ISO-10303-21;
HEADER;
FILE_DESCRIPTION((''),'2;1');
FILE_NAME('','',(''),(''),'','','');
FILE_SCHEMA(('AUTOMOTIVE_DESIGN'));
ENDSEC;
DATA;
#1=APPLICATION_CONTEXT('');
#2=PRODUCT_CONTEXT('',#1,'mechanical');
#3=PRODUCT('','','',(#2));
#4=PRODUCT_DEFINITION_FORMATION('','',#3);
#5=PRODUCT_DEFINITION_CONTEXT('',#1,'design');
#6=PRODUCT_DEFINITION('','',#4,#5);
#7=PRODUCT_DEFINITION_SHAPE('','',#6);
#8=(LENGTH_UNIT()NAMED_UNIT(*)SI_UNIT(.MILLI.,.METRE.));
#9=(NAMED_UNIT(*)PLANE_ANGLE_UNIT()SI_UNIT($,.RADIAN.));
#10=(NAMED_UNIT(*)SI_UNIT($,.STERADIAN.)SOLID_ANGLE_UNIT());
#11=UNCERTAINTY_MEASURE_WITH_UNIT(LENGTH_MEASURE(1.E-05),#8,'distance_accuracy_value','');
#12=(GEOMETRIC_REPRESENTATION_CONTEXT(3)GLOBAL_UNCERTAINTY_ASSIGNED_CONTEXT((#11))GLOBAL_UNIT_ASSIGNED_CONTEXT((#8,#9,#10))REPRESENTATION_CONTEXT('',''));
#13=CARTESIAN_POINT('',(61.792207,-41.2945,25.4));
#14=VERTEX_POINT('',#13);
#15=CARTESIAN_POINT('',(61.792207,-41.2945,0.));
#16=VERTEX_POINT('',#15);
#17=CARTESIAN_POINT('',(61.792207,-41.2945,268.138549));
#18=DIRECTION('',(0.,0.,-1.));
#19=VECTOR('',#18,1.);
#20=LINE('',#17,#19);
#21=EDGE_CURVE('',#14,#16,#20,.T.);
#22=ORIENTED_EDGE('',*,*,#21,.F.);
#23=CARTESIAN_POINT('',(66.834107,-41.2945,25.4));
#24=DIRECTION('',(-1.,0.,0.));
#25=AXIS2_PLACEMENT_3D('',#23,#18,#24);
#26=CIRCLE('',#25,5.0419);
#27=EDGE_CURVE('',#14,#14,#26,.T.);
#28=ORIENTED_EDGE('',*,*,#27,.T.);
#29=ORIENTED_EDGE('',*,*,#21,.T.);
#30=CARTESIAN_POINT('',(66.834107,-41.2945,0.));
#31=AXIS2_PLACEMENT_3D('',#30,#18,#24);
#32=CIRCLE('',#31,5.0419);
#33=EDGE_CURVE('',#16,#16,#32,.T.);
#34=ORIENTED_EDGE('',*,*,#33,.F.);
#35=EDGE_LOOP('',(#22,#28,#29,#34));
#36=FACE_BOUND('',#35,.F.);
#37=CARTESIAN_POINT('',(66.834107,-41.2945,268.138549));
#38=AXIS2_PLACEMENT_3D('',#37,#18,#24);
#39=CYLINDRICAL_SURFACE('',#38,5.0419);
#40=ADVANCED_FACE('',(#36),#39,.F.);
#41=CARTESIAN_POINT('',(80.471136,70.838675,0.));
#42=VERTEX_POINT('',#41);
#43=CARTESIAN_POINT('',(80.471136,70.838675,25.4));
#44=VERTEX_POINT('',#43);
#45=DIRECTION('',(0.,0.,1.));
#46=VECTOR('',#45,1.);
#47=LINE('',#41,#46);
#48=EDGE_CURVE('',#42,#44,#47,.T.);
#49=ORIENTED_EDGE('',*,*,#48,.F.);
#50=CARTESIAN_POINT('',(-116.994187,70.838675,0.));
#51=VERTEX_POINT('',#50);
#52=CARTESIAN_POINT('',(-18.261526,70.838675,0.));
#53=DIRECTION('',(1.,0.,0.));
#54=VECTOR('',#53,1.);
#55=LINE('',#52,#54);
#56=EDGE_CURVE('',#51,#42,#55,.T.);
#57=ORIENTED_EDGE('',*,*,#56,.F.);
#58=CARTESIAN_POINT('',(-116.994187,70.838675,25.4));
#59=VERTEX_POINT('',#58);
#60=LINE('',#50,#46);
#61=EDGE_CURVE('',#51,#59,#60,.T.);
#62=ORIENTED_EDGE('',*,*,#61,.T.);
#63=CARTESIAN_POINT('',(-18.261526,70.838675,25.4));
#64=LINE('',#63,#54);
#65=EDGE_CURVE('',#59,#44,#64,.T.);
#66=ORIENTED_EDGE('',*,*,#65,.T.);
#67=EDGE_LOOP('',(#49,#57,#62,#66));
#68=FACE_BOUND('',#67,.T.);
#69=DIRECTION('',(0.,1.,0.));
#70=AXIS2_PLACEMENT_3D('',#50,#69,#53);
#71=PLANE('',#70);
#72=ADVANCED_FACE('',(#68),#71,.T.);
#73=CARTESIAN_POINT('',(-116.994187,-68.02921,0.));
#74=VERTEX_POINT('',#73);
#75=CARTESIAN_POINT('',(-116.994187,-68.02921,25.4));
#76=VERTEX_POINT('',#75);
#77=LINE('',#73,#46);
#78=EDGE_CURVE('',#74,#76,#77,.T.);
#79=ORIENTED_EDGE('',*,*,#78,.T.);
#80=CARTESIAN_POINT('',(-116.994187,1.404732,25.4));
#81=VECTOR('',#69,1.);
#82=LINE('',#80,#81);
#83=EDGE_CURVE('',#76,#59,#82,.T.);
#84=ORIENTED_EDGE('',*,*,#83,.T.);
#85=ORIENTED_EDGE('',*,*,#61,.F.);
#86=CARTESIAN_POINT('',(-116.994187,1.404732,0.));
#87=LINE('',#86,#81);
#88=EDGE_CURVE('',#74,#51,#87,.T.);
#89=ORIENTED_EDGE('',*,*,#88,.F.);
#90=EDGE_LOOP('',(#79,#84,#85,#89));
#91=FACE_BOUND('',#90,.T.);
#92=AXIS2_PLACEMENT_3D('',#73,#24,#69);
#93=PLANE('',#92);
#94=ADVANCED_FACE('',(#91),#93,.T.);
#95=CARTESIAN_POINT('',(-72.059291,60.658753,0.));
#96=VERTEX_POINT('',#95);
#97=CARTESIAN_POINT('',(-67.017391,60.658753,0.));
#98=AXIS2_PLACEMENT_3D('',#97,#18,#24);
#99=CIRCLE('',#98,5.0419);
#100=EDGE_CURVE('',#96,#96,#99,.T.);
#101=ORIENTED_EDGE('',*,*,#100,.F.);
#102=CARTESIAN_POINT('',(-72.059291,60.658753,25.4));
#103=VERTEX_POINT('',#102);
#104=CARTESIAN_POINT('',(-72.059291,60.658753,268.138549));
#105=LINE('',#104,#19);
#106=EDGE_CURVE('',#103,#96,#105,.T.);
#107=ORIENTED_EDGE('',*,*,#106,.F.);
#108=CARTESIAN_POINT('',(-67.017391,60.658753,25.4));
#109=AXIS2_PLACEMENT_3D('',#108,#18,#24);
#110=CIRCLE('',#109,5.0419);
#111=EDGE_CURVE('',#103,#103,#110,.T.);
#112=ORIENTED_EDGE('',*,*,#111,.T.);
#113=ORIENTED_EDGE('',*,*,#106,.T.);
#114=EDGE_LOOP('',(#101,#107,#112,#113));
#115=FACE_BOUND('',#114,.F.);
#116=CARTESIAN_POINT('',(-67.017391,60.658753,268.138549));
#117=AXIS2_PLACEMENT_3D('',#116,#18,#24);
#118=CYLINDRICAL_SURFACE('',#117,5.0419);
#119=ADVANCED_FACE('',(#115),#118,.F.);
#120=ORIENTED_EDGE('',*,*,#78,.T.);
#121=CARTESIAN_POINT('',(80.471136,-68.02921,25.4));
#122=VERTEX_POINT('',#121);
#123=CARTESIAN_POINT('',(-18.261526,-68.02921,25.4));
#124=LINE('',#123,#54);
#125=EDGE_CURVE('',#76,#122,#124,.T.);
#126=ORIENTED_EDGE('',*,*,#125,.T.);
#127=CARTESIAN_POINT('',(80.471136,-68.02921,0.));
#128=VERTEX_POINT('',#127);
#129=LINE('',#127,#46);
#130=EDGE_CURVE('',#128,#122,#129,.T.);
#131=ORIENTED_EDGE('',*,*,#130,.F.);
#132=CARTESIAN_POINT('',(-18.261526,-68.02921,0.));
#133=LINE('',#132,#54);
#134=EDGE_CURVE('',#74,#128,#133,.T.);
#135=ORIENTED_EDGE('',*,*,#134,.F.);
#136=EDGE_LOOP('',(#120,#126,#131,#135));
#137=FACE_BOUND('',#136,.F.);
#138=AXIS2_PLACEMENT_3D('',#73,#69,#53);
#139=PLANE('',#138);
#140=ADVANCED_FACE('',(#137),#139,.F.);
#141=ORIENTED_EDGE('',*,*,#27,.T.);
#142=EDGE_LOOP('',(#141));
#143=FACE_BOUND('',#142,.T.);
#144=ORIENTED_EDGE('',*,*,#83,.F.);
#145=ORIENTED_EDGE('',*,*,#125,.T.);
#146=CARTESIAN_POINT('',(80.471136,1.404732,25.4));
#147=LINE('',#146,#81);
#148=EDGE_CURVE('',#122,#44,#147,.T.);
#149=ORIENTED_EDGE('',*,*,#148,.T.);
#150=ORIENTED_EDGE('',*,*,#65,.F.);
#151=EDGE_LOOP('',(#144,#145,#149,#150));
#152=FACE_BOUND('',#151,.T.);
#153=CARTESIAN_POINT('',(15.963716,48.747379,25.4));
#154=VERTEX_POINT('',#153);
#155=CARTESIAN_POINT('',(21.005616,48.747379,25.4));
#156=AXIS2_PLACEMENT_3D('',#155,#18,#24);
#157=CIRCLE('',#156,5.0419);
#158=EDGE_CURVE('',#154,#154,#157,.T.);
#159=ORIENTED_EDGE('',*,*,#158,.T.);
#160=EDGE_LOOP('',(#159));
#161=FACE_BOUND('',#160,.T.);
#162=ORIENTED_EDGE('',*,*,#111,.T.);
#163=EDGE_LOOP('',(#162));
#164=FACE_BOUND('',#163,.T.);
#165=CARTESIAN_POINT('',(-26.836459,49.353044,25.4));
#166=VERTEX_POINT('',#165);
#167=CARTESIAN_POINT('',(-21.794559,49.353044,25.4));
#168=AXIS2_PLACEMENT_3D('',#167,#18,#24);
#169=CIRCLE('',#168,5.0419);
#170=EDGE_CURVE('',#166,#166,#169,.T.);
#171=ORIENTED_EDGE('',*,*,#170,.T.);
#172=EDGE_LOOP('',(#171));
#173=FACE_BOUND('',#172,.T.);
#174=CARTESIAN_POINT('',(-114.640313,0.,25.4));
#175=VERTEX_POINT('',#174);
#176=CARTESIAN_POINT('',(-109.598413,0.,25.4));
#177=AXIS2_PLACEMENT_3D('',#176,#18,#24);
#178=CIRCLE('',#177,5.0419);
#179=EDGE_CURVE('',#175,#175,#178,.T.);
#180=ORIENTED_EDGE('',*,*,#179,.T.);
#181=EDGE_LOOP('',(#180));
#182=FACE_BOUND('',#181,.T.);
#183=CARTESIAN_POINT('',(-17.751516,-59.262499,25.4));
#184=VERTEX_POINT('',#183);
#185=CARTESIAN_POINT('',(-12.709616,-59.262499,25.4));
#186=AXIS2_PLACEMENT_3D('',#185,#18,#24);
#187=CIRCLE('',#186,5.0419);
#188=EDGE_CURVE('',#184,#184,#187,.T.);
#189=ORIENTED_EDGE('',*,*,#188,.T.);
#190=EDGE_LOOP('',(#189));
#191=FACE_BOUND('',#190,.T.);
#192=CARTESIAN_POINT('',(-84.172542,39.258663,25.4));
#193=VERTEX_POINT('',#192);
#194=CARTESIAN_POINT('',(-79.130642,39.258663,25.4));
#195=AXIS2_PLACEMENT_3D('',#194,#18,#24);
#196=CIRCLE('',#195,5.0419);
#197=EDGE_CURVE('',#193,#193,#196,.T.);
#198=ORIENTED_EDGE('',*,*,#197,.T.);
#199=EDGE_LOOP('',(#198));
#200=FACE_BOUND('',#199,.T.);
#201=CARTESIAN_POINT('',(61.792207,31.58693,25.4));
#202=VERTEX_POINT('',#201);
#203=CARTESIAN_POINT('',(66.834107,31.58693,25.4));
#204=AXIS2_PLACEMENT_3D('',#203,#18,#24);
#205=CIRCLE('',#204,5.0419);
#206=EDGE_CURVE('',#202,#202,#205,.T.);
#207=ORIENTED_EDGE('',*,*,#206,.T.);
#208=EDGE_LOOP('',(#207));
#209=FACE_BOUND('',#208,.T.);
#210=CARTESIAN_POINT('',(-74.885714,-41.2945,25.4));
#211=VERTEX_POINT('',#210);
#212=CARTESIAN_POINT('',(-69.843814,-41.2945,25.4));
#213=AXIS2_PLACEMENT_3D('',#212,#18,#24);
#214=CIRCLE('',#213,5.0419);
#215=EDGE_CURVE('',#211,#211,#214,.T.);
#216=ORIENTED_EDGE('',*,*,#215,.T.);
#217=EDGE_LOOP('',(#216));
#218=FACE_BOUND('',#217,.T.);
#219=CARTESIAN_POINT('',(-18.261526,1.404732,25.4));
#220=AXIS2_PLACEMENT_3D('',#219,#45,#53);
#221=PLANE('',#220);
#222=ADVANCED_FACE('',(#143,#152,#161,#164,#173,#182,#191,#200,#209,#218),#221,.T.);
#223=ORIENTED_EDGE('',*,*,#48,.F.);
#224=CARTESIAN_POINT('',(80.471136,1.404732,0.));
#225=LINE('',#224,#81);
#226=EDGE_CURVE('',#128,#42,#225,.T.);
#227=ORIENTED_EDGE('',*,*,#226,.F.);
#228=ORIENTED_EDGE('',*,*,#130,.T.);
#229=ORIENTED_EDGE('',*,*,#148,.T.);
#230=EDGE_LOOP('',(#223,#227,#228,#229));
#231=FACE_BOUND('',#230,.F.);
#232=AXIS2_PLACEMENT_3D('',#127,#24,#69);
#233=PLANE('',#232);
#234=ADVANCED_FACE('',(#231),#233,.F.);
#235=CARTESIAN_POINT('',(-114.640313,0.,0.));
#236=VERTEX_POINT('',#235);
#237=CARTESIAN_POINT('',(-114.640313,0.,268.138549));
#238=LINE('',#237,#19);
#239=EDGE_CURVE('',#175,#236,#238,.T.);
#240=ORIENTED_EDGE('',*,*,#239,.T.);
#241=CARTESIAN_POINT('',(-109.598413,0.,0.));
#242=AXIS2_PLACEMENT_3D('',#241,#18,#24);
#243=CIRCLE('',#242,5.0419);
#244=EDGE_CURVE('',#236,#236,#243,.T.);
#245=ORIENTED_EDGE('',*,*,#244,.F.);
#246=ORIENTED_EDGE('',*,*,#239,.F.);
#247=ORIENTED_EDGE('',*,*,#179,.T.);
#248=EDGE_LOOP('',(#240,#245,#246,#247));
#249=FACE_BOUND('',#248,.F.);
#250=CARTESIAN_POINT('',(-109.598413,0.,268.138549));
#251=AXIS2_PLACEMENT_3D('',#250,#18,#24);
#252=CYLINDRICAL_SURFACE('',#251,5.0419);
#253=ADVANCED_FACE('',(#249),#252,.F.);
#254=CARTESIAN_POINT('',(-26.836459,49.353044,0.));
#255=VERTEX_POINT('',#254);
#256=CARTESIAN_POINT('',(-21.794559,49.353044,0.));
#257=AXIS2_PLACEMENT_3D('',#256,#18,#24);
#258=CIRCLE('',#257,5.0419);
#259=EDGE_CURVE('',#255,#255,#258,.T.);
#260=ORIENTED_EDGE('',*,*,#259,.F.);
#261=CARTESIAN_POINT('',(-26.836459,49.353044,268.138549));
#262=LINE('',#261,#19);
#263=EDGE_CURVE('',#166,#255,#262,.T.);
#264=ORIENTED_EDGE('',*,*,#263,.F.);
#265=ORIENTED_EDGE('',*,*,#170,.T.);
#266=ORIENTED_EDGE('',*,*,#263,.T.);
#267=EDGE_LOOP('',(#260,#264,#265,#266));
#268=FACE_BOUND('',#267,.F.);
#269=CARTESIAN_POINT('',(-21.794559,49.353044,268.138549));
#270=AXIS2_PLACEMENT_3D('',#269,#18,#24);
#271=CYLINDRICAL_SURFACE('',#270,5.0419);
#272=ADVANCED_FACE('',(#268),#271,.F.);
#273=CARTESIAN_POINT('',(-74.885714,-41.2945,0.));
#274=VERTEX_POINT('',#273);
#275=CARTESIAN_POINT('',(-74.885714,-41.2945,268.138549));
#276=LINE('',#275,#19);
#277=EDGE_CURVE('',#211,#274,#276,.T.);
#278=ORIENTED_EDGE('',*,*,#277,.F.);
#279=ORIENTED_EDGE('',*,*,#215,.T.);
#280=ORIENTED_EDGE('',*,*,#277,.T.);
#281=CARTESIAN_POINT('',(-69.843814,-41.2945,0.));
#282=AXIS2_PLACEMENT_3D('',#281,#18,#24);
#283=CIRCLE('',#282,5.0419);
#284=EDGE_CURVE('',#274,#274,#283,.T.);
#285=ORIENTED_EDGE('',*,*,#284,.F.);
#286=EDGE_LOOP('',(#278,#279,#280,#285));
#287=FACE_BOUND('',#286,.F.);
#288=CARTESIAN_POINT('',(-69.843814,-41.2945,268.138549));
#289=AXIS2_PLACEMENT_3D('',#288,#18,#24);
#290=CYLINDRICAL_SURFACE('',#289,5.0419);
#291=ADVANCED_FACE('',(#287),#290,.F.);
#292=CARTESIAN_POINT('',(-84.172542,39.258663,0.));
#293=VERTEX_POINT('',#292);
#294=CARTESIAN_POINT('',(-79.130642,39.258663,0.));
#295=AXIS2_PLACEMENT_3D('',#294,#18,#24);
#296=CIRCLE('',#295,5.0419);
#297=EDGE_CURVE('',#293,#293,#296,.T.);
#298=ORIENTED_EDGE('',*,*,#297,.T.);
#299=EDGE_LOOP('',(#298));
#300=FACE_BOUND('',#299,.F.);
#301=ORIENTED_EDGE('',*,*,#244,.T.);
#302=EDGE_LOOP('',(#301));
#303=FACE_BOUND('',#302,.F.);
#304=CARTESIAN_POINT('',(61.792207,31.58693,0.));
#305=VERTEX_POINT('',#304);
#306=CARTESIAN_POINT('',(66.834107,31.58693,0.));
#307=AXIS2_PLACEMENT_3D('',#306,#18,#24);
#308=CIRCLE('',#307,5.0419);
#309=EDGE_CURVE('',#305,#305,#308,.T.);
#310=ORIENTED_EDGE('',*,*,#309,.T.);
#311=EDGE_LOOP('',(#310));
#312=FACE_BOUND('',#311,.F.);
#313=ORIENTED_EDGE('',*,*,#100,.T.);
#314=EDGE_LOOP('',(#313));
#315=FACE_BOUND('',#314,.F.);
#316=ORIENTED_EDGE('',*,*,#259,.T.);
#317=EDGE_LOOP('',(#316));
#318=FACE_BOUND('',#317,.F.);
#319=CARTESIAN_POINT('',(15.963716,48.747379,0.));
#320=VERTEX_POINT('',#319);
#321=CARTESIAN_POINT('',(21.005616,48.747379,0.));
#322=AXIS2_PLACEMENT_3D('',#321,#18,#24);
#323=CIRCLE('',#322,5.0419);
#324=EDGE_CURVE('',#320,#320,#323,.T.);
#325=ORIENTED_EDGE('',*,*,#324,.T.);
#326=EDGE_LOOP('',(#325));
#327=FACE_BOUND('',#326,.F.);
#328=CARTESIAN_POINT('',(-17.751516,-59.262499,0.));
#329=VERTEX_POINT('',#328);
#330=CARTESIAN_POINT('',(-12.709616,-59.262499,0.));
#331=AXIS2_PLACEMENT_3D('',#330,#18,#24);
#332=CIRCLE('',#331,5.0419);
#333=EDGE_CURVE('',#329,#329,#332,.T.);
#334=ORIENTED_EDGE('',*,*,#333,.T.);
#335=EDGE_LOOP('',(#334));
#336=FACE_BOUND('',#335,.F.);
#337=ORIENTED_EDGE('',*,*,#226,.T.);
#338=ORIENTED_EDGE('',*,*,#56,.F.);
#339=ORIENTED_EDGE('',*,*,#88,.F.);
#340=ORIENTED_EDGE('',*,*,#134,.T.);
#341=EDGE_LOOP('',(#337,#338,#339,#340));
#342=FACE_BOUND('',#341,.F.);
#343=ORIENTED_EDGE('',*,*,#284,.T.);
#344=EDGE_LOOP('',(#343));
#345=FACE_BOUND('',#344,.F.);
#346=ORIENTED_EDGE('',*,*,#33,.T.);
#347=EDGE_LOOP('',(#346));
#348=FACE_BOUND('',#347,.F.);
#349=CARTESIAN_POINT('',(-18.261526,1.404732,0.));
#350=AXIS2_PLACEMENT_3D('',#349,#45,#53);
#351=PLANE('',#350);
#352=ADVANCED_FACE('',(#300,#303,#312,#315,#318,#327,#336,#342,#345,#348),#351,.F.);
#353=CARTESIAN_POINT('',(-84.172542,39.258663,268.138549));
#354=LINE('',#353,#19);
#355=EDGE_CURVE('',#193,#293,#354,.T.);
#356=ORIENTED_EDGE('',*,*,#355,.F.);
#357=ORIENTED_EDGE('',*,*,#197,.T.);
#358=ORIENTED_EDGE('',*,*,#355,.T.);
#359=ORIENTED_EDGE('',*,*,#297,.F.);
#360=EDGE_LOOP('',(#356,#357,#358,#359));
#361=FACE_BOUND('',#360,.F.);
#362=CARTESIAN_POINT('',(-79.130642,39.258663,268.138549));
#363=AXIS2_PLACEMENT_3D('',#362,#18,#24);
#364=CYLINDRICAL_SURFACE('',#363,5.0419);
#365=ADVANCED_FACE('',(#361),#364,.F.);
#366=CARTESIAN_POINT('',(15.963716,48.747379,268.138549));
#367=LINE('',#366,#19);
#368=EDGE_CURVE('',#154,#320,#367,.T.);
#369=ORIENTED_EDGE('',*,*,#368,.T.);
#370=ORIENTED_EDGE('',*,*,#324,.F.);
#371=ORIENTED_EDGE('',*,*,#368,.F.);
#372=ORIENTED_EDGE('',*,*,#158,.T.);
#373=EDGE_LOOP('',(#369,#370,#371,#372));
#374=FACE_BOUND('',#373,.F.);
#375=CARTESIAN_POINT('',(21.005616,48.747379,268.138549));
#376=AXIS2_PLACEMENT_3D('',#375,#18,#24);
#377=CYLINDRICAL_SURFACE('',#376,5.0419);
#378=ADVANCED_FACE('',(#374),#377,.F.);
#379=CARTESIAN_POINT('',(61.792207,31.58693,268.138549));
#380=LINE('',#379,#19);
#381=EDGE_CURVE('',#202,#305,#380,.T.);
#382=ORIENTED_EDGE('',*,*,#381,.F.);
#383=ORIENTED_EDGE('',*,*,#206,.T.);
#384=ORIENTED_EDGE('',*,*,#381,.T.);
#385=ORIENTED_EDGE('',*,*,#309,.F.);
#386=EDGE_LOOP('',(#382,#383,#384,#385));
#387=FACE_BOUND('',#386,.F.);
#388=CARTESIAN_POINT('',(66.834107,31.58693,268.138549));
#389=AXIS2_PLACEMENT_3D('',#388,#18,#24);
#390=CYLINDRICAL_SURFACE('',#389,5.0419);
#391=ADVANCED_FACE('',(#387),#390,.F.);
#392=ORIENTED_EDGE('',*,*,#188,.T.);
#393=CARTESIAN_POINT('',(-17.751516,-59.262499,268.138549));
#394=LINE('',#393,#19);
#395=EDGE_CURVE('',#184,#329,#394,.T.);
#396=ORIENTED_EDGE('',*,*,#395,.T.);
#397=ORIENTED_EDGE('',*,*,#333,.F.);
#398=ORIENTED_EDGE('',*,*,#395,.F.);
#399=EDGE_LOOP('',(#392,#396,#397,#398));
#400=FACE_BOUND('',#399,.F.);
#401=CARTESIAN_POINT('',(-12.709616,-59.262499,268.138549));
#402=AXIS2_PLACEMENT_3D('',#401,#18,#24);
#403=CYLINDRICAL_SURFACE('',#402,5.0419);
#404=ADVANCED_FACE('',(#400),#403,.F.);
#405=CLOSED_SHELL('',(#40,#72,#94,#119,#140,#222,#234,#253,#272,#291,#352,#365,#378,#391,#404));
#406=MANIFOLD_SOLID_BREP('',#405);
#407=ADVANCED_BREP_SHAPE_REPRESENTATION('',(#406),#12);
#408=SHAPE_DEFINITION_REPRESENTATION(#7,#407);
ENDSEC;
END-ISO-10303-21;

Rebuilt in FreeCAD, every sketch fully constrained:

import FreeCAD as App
import Part
import Sketcher

V = App.Vector
Q = App.Units.Quantity


def add_polygon(sketch, points):
    """Adds a closed chain of lines whose ends are joined by coincident constraints."""
    first, n = sketch.GeometryCount, len(points)
    for a, b in zip(points, points[1:] + points[:1]):
        sketch.addGeometry(Part.LineSegment(App.Vector(*a, 0), App.Vector(*b, 0)), False)
    for i in range(n):
        sketch.addConstraint(Sketcher.Constraint("Coincident", first + i, 2, first + (i + 1) % n, 1))

doc = App.newDocument("Part")
body = doc.addObject("PartDesign::Body", "Body")

sketch1 = body.newObject("Sketcher::SketchObject", "Sketch")
sketch1.AttachmentSupport = (doc.getObject("XY_Plane"), [""])
sketch1.MapMode = "FlatFace"
add_polygon(sketch1, [(-117, 71), (-117, -68), (80, -68), (80, 71)])
sketch1.addConstraint([
    Sketcher.Constraint("Vertical", 0),
    Sketcher.Constraint("Horizontal", 1),
    Sketcher.Constraint("Vertical", 2),
    Sketcher.Constraint("Horizontal", 3),
    Sketcher.Constraint("DistanceX", 1, 1, 1, 2, Q("197.465323 mm")),
    Sketcher.Constraint("DistanceY", 0, 2, 0, 1, Q("138.867885 mm")),
    Sketcher.Constraint("DistanceY", 0, 2, -1, 1, Q("68.02921 mm")),
    Sketcher.Constraint("DistanceX", 0, 2, -1, 1, Q("116.994187 mm")),
])
pad1 = body.newObject("PartDesign::Pad", "Pad")
pad1.Profile = sketch1
pad1.Length = Q("1 in")

sketch2 = body.newObject("Sketcher::SketchObject", "Sketch001")
sketch2.AttachmentSupport = (doc.getObject("XY_Plane"), [""])
sketch2.MapMode = "FlatFace"
sketch2.AttachmentOffset = App.Placement(V(0, 0, 1 * 25.4), App.Rotation())
sketch2.addGeometry([
    Part.Circle(V(-70, -41, 0), V(0, 0, 1), 5),
    Part.Circle(V(-79, 39, 0), V(0, 0, 1), 5),
    Part.Circle(V(-110, 0, 0), V(0, 0, 1), 5),
    Part.Circle(V(67, -41, 0), V(0, 0, 1), 5),
    Part.Circle(V(67, 32, 0), V(0, 0, 1), 5),
    Part.Circle(V(-22, 49, 0), V(0, 0, 1), 5),
    Part.Circle(V(21, 49, 0), V(0, 0, 1), 5),
    Part.Circle(V(-67, 61, 0), V(0, 0, 1), 5),
    Part.Circle(V(-13, -59, 0), V(0, 0, 1), 5),
], False)
sketch2.addConstraint([
    Sketcher.Constraint("Equal", 0, 1),
    Sketcher.Constraint("Equal", 1, 2),
    Sketcher.Constraint("Equal", 2, 3),
    Sketcher.Constraint("Equal", 3, 4),
    Sketcher.Constraint("Equal", 4, 5),
    Sketcher.Constraint("Equal", 5, 6),
    Sketcher.Constraint("Equal", 6, 7),
    Sketcher.Constraint("Equal", 7, 8),
    Sketcher.Constraint("PointOnObject", 2, 3, -1),
    Sketcher.Constraint("Horizontal", 0, 3, 3, 3),
    Sketcher.Constraint("Vertical", 3, 3, 4, 3),
    Sketcher.Constraint("Diameter", 0, Q("0.397 in")),
    Sketcher.Constraint("DistanceY", 0, 3, -1, 1, Q("41.2945 mm")),
    Sketcher.Constraint("DistanceY", 8, 3, -1, 1, Q("59.262499 mm")),
    Sketcher.Constraint("DistanceX", 2, 3, 0, 3, Q("39.754599 mm")),
    Sketcher.Constraint("DistanceX", 0, 3, 8, 3, Q("57.134198 mm")),
    Sketcher.Constraint("DistanceY", -1, 1, 4, 3, Q("31.58693 mm")),
    Sketcher.Constraint("DistanceX", 5, 3, -1, 1, Q("21.794559 mm")),
    Sketcher.Constraint("DistanceY", -1, 1, 6, 3, Q("48.747379 mm")),
    Sketcher.Constraint("DistanceX", 7, 3, -1, 1, Q("67.017391 mm")),
    Sketcher.Constraint("DistanceX", 1, 3, 0, 3, Q("9.286828 mm")),
    Sketcher.Constraint("DistanceX", 0, 3, 3, 3, Q("136.677921 mm")),
    Sketcher.Constraint("DistanceY", 1, 3, 5, 3, Q("10.094382 mm")),
    Sketcher.Constraint("DistanceX", 6, 3, 4, 3, Q("45.828491 mm")),
    Sketcher.Constraint("DistanceX", 1, 3, 7, 3, Q("12.113251 mm")),
    Sketcher.Constraint("DistanceY", 1, 3, 7, 3, Q("21.40009 mm")),
    Sketcher.Constraint("DistanceY", -1, 1, 1, 3, Q("39.258663 mm")),
])
doc.recompute()
hole = body.newObject("PartDesign::Hole", "Hole")
hole.Profile = sketch2
hole.ThreadType = "None"
hole.Diameter = Q("0.397 in")
hole.DepthType = "ThroughAll"

doc.recompute()
